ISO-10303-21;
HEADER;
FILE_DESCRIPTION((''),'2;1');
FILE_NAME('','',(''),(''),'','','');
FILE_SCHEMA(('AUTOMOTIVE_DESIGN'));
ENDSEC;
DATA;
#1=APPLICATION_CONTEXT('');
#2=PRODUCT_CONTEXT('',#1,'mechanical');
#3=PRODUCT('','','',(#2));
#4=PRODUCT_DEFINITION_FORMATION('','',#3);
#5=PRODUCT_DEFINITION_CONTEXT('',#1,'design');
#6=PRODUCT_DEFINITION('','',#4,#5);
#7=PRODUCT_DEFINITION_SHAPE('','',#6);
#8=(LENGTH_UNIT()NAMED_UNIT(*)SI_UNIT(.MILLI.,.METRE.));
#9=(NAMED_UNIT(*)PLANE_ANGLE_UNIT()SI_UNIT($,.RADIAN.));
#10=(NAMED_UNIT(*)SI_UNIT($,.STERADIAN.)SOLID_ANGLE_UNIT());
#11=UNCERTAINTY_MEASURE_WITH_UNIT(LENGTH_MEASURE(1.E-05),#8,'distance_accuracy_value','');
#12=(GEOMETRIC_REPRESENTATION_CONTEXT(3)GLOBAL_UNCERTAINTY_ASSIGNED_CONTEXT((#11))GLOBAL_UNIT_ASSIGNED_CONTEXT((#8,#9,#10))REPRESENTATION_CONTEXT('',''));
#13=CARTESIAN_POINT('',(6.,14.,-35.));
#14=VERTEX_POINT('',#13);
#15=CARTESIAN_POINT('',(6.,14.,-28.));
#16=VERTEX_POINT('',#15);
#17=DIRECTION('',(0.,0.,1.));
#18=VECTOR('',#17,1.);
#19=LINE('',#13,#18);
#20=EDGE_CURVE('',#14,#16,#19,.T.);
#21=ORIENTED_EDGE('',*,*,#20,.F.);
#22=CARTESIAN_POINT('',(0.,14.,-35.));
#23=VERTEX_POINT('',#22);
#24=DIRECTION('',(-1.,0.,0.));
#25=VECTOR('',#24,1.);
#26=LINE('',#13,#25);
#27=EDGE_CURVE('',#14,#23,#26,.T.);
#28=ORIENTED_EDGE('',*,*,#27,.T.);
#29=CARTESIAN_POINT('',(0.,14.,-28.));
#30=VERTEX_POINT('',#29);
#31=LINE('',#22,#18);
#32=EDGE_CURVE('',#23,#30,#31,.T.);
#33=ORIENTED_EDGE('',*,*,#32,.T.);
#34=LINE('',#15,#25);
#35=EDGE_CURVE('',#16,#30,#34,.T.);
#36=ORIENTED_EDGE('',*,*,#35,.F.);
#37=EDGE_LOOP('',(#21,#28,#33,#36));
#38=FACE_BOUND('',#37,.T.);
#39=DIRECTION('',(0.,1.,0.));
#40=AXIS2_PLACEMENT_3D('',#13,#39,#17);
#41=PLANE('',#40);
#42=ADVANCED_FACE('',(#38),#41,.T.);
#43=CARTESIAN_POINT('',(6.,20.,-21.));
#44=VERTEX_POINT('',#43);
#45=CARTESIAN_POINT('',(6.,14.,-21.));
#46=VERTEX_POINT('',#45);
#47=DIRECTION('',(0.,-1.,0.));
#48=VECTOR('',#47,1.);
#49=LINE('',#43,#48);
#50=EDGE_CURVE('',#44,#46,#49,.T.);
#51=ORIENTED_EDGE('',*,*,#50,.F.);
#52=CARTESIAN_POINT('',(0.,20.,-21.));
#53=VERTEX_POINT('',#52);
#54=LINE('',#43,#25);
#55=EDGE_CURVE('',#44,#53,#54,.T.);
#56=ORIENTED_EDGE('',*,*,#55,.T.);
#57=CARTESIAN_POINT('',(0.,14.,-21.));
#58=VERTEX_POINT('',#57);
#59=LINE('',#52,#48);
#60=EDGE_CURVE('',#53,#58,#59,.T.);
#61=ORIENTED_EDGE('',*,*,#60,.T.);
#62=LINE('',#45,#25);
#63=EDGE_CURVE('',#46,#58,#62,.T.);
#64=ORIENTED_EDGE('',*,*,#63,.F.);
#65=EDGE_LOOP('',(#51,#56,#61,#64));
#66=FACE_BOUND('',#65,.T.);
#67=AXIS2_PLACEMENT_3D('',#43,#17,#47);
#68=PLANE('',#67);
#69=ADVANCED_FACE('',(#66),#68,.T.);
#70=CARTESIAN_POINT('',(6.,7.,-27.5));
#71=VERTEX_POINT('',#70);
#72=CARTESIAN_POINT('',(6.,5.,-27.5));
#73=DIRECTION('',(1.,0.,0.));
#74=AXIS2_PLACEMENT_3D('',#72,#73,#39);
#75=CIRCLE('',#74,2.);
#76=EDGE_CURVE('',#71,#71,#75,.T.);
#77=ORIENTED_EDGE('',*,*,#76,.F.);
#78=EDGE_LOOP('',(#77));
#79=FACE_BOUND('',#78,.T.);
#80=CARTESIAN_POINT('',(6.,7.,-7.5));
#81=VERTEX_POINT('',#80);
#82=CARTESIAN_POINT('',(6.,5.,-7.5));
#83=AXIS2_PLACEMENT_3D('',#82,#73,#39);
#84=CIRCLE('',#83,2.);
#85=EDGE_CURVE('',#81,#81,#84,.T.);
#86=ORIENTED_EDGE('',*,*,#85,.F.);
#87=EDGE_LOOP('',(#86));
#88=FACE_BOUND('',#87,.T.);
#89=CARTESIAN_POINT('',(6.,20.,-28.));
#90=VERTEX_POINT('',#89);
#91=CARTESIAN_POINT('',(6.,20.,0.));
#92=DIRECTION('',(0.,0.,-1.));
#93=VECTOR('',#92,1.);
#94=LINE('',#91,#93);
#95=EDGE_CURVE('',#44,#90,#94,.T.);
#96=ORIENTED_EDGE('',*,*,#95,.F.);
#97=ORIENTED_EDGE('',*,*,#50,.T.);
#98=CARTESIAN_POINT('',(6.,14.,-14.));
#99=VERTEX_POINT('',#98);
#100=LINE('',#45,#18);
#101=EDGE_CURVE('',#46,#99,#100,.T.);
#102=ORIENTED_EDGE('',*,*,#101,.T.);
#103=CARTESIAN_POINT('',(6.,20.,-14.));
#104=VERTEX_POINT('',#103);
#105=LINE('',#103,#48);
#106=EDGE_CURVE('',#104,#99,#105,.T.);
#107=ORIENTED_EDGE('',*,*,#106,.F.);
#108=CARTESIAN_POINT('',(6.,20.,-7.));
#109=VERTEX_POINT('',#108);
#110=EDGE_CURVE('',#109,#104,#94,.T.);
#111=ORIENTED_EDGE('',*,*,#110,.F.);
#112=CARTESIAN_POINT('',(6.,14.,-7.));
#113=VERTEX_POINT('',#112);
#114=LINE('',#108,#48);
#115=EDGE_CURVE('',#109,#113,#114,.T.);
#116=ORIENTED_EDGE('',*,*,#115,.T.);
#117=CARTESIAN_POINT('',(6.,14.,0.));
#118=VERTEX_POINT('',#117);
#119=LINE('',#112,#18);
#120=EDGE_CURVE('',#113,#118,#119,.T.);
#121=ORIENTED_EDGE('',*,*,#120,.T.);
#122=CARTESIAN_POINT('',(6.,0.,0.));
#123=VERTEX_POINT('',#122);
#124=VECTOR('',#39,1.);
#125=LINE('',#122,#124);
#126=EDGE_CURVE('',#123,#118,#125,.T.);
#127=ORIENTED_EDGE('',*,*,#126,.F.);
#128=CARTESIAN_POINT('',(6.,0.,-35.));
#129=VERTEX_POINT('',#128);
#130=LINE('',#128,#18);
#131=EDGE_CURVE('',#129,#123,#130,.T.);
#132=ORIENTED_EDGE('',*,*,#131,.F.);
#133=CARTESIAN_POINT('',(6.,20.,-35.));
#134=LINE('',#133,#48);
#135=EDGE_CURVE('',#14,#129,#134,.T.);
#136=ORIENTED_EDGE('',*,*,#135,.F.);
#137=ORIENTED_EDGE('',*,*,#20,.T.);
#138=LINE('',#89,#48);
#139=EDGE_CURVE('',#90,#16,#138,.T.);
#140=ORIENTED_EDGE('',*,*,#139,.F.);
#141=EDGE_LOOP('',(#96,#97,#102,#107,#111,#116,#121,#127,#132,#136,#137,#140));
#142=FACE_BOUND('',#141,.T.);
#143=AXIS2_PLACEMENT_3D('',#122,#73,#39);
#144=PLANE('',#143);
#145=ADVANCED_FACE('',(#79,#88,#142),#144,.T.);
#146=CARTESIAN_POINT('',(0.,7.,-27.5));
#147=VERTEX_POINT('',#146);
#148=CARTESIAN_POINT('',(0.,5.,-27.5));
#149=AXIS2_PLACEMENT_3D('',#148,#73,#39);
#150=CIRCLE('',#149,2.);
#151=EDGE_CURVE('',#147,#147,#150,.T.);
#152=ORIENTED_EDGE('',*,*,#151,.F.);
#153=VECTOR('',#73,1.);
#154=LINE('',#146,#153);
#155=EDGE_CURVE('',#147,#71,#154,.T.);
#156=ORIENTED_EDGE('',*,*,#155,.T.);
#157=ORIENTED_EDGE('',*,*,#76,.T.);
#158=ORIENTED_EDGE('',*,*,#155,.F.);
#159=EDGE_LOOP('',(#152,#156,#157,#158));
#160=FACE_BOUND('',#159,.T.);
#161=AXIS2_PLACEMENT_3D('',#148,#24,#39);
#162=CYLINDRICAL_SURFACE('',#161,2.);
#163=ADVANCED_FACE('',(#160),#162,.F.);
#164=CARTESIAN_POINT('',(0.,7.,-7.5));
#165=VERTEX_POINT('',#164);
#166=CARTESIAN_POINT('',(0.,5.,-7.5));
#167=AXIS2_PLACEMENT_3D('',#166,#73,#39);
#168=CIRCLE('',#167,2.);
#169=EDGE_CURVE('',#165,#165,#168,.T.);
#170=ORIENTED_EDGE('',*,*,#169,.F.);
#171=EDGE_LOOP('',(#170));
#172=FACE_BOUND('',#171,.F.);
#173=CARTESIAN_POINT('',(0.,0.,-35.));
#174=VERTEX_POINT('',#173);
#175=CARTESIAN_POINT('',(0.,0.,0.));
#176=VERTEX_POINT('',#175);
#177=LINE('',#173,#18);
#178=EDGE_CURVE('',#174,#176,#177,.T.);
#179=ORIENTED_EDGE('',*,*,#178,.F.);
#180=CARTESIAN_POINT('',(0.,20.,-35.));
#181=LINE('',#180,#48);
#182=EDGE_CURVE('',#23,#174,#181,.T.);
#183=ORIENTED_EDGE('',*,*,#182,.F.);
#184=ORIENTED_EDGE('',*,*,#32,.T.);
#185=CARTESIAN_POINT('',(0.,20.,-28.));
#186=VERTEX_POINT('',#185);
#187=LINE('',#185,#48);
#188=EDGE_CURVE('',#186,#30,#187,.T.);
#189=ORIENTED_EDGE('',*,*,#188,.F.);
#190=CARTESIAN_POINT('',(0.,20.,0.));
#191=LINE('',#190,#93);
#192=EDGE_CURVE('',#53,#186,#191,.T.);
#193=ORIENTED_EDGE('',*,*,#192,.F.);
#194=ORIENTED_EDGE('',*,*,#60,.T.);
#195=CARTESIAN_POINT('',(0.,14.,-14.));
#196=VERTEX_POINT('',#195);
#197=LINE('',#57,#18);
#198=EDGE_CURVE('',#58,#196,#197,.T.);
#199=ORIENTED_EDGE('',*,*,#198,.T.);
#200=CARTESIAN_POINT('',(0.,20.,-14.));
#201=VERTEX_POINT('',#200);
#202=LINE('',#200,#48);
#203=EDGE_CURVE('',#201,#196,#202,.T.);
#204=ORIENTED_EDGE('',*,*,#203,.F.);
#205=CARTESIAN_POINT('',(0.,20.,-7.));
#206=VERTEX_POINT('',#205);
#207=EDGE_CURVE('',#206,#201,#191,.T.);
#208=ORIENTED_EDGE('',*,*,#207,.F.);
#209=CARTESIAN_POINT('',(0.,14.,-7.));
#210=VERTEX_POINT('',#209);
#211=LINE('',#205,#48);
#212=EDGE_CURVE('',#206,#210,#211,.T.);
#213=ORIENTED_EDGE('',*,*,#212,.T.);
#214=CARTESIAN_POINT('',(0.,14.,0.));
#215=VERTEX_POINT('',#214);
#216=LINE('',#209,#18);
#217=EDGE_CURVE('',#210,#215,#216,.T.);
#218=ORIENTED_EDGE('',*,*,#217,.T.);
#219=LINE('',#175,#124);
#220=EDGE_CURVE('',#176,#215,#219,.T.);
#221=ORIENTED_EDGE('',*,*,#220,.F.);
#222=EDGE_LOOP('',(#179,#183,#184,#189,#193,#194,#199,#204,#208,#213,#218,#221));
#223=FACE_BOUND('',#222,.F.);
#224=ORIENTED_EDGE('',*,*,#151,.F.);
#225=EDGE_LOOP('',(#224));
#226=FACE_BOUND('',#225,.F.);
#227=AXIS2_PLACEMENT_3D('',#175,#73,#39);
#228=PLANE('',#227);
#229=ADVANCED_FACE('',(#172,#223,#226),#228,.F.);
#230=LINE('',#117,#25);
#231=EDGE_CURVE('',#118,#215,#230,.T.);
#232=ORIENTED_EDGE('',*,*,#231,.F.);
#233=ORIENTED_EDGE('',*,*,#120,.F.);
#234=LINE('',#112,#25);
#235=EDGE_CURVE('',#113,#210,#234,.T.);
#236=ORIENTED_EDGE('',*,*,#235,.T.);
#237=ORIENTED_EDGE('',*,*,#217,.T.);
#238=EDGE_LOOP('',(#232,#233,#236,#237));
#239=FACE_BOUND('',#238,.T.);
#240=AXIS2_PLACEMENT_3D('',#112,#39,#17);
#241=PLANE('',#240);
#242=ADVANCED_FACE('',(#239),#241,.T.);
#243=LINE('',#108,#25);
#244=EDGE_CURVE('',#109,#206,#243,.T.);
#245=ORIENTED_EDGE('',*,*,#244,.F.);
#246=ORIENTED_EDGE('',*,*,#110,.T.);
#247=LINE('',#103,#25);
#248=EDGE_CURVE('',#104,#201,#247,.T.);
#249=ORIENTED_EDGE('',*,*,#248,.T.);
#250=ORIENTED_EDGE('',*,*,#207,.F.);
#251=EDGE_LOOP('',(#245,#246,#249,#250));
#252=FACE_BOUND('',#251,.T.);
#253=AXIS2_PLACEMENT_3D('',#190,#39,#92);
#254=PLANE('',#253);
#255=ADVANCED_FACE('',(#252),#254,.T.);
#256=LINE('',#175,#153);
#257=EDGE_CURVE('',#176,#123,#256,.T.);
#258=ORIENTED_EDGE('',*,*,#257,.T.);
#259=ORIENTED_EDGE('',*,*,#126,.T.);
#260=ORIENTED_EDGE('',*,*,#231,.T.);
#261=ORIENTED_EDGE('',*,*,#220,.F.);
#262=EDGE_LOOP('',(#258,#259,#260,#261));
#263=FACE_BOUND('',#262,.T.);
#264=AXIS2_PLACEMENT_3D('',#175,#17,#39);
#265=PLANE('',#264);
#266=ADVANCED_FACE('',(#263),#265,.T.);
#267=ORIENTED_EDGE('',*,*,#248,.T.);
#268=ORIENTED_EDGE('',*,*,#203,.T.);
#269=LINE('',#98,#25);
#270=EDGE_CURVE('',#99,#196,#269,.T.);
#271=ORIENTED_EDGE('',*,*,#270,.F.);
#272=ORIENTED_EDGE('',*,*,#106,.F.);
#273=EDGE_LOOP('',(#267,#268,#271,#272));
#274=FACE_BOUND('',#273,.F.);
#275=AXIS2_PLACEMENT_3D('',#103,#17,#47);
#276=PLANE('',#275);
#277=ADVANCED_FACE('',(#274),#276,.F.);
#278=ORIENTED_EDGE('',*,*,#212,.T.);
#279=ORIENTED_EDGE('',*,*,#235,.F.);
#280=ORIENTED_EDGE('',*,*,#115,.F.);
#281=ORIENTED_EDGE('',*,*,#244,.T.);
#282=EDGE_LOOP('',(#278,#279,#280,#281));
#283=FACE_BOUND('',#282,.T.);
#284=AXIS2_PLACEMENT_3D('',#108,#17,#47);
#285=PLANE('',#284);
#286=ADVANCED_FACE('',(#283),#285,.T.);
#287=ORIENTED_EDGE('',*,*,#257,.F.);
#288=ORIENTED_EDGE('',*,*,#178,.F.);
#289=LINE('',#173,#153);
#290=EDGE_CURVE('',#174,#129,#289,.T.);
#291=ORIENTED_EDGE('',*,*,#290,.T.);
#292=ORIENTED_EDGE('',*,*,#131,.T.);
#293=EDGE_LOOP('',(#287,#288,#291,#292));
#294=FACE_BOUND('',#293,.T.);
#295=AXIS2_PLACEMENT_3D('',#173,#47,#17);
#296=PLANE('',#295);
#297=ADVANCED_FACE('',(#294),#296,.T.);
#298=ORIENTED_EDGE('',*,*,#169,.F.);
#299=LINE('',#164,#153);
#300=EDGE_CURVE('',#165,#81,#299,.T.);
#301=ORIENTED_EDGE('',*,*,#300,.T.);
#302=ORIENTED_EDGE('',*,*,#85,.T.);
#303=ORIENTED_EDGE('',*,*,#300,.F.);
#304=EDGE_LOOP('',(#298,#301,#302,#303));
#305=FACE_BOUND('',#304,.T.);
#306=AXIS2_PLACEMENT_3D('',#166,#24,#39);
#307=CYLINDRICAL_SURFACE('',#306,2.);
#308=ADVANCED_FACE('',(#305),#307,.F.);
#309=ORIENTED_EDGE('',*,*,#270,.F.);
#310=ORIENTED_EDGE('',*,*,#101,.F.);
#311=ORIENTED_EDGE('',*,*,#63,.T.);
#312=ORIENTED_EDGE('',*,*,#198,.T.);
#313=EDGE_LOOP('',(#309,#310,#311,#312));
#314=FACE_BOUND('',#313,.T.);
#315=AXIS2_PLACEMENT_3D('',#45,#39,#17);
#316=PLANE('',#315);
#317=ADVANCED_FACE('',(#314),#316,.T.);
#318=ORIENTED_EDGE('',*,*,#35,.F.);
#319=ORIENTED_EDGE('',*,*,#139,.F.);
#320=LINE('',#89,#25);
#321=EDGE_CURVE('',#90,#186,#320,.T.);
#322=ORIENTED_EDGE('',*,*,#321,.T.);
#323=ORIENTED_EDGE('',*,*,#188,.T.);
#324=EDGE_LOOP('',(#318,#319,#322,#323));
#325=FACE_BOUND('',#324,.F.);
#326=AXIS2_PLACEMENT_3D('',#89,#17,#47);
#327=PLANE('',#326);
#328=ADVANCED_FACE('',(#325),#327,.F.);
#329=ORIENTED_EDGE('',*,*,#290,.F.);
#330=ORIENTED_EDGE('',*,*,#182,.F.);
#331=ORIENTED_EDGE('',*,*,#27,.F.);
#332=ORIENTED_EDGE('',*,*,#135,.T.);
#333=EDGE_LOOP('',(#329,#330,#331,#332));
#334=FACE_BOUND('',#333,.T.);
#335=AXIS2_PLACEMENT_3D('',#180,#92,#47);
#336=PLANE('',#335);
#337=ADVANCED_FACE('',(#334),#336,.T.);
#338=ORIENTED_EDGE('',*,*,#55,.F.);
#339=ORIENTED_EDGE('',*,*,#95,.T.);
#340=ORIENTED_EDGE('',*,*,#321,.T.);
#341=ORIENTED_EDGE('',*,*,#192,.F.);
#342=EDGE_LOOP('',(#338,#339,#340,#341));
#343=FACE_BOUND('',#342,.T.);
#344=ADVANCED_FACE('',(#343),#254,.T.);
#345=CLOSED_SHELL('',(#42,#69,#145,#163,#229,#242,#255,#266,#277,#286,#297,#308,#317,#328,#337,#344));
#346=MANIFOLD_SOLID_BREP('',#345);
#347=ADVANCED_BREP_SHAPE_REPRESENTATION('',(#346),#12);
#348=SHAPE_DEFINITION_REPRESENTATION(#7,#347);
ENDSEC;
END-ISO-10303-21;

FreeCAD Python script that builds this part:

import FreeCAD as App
import Part
import Sketcher
from FreeCAD import Vector

doc = App.newDocument("Part")
body = doc.addObject("PartDesign::Body", "Body")

sketch1 = doc.addObject("Sketcher::SketchObject", "Sketch")
body.addObject(sketch1)
sketch1.AttachmentSupport = (doc.YZ_Plane, [""])
sketch1.MapMode = "FlatFace"
sketch1.addGeometry(Part.LineSegment(Vector(20, 0, 0), Vector(0, 0, 0)), False)
sketch1.addGeometry(Part.LineSegment(Vector(0, 0, 0), Vector(0, -35, 0)), False)
sketch1.addGeometry(Part.LineSegment(Vector(0, -35, 0), Vector(20, -35, 0)), False)
sketch1.addGeometry(Part.LineSegment(Vector(20, -35, 0), Vector(20, 0, 0)), False)
sketch1.addGeometry(Part.Circle(Vector(5, -27.5, 0), Vector(0, 0, 1), 2), False)
sketch1.addGeometry(Part.Circle(Vector(5, -7.5, 0), Vector(0, 0, 1), 2), False)
sketch1.addConstraint(Sketcher.Constraint("Coincident", 0, 2, 1, 1))
sketch1.addConstraint(Sketcher.Constraint("Coincident", 1, 2, 2, 1))
sketch1.addConstraint(Sketcher.Constraint("Coincident", 2, 2, 3, 1))
sketch1.addConstraint(Sketcher.Constraint("Coincident", 3, 2, 0, 1))
sketch1.addConstraint(Sketcher.Constraint("Horizontal", 0))
sketch1.addConstraint(Sketcher.Constraint("Vertical", 1))
sketch1.addConstraint(Sketcher.Constraint("Horizontal", 2))
sketch1.addConstraint(Sketcher.Constraint("Vertical", 3))
sketch1.addConstraint(Sketcher.Constraint("Coincident", 0, 2, -1, 1))
sketch1.addConstraint(Sketcher.Constraint("Equal", 4, 5))
sketch1.addConstraint(Sketcher.Constraint("Vertical", 4, 3, 5, 3))
sketch1.addConstraint(Sketcher.Constraint("Diameter", 4, 4.0))
sketch1.addConstraint(Sketcher.Constraint("DistanceX", 0, 2, 0, 1, 20.0))
sketch1.addConstraint(Sketcher.Constraint("DistanceY", 1, 2, 1, 1, 35.0))
sketch1.addConstraint(Sketcher.Constraint("DistanceY", 4, 3, 5, 3, 20.0))
sketch1.addConstraint(Sketcher.Constraint("DistanceX", -1, 1, 4, 3, 5.0))
sketch1.addConstraint(Sketcher.Constraint("DistanceY", 4, 3, -1, 1, 27.5))
pad1 = doc.addObject("PartDesign::Pad", "Pad")
body.addObject(pad1)
pad1.Profile = sketch1
pad1.Length = 6

sketch2 = doc.addObject("Sketcher::SketchObject", "Sketch001")
body.addObject(sketch2)
sketch2.AttachmentSupport = (doc.YZ_Plane, [""])
sketch2.MapMode = "FlatFace"
sketch2.AttachmentOffset = App.Placement(Vector(0, 0, 6), App.Rotation())
sketch2.addGeometry(Part.LineSegment(Vector(20, -7, 0), Vector(20, 0, 0)), False)
sketch2.addGeometry(Part.LineSegment(Vector(20, 0, 0), Vector(14, 0, 0)), False)
sketch2.addGeometry(Part.LineSegment(Vector(14, 0, 0), Vector(14, -7, 0)), False)
sketch2.addGeometry(Part.LineSegment(Vector(14, -7, 0), Vector(20, -7, 0)), False)
sketch2.addConstraint(Sketcher.Constraint("Coincident", 0, 2, 1, 1))
sketch2.addConstraint(Sketcher.Constraint("Coincident", 1, 2, 2, 1))
sketch2.addConstraint(Sketcher.Constraint("Coincident", 2, 2, 3, 1))
sketch2.addConstraint(Sketcher.Constraint("Coincident", 3, 2, 0, 1))
sketch2.addConstraint(Sketcher.Constraint("Vertical", 0))
sketch2.addConstraint(Sketcher.Constraint("Horizontal", 1))
sketch2.addConstraint(Sketcher.Constraint("Vertical", 2))
sketch2.addConstraint(Sketcher.Constraint("Horizontal", 3))
sketch2.addConstraint(Sketcher.Constraint("PointOnObject", 0, 2, -1))
sketch2.addConstraint(Sketcher.Constraint("DistanceX", 1, 2, 1, 1, 6.0))
sketch2.addConstraint(Sketcher.Constraint("DistanceY", 0, 1, 0, 2, 7.0))
sketch2.addConstraint(Sketcher.Constraint("DistanceX", -1, 1, 0, 2, 20.0))
pocket1 = doc.addObject("PartDesign::Pocket", "Pocket")
body.addObject(pocket1)
pocket1.Profile = sketch2
pocket1.Length = 6
doc.recompute()

linearpattern = doc.addObject("PartDesign::LinearPattern", "LinearPattern")
body.addObject(linearpattern)
linearpattern.Originals = [pocket1]
linearpattern.Direction = (doc.Z_Axis, [""])
linearpattern.Mode = "offset"
linearpattern.Offset = 14
linearpattern.Occurrences = 3
linearpattern.Reversed = True
body.Tip = linearpattern

doc.recompute()
